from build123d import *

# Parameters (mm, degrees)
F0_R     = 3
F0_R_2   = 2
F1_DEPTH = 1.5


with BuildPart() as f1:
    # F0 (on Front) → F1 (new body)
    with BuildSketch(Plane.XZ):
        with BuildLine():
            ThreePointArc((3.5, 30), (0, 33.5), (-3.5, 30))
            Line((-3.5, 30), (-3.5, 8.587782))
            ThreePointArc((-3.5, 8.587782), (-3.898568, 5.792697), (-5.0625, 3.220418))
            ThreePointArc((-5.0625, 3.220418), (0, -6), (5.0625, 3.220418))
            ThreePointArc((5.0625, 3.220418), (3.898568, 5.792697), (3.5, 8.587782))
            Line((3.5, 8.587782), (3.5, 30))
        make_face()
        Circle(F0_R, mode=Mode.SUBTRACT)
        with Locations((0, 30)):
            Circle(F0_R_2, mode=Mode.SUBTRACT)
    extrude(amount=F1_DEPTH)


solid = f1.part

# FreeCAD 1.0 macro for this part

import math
import FreeCAD as App
import Part
import Sketcher

V = App.Vector
Q = App.Units.Quantity

doc = App.newDocument("Part")
body = doc.addObject("PartDesign::Body", "Body")

# Sketch on XZ plane
sketch1 = body.newObject("Sketcher::SketchObject", "Sketch")
sketch1.AttachmentSupport = (doc.getObject("XZ_Plane"), [""])
sketch1.MapMode = "FlatFace"
sketch1.addGeometry(Part.ArcOfCircle(Part.Circle(V(0, 30, 0), V(0, 0, 1), 3.5), math.radians(0), math.radians(180)), False)
sketch1.addGeometry(Part.LineSegment(V(-3.5, 30, 0), V(-3.5, 8.6, 0)), False)
sketch1.addGeometry(Part.ArcOfCircle(Part.Circle(V(-13.5, 8.6, 0), V(0, 0, 1), 10), math.radians(-32), math.radians(0)), False)
sketch1.addGeometry(Part.ArcOfCircle(Part.Circle(V(0, 0, 0), V(0, 0, 1), 6), math.radians(148), math.radians(392)), False)
sketch1.addGeometry(Part.ArcOfCircle(Part.Circle(V(13.5, 8.6, 0), V(0, 0, 1), 10), math.radians(-180), math.radians(-148)), False)
sketch1.addGeometry(Part.LineSegment(V(3.5, 8.6, 0), V(3.5, 30, 0)), False)
sketch1.addGeometry(Part.Circle(V(0, 0, 0), V(0, 0, 1), 3), False)
sketch1.addGeometry(Part.Circle(V(0, 30, 0), V(0, 0, 1), 2), False)
sketch1.addConstraint(Sketcher.Constraint("Tangent", 0, 2, 1, 1))
sketch1.addConstraint(Sketcher.Constraint("Tangent", 1, 2, 2, 2))
sketch1.addConstraint(Sketcher.Constraint("Tangent", 2, 1, 3, 1))
sketch1.addConstraint(Sketcher.Constraint("Tangent", 3, 2, 4, 2))
sketch1.addConstraint(Sketcher.Constraint("Tangent", 4, 1, 5, 1))
sketch1.addConstraint(Sketcher.Constraint("Tangent", 5, 2, 0, 1))
sketch1.addConstraint(Sketcher.Constraint("Vertical", 1))
sketch1.addConstraint(Sketcher.Constraint("Vertical", 5))
sketch1.addConstraint(Sketcher.Constraint("Coincident", 3, 3, -1, 1))
sketch1.addConstraint(Sketcher.Constraint("Coincident", 6, 3, -1, 1))
sketch1.addConstraint(Sketcher.Constraint("Coincident", 7, 3, 0, 3))
sketch1.addConstraint(Sketcher.Constraint("Equal", 2, 4))
sketch1.addConstraint(Sketcher.Constraint("PointOnObject", 0, 3, -2))
sketch1.addConstraint(Sketcher.Constraint("Diameter", 6, Q("6 mm")))
sketch1.addConstraint(Sketcher.Constraint("Diameter", 7, Q("4 mm")))
sketch1.addConstraint(Sketcher.Constraint("Radius", 3, Q("6 mm")))
sketch1.addConstraint(Sketcher.Constraint("Radius", 0, Q("3.5 mm")))
sketch1.addConstraint(Sketcher.Constraint("DistanceY", -1, 1, 0, 3, Q("30 mm")))
sketch1.addConstraint(Sketcher.Constraint("Radius", 2, Q("10.000006 mm")))
pad1 = body.newObject("PartDesign::Pad", "Pad")
pad1.Profile = sketch1
pad1.Length = 1.5

doc.recompute()
